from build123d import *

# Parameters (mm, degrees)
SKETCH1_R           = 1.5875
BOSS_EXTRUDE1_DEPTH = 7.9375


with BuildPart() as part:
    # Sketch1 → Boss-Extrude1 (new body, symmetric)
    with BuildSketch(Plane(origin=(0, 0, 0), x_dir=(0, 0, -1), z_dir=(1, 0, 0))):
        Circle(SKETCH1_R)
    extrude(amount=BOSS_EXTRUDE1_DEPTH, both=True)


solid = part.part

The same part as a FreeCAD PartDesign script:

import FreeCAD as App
import Part
import Sketcher

V = App.Vector
Q = App.Units.Quantity

doc = App.newDocument("Part")
params = doc.addObject("Spreadsheet::Sheet", "Params")
for row, (alias, value) in enumerate([
    ("sketch1_diameter", "0.125 in"),
    ("pad1_length", "0.625 in"),
], start=1):
    params.set(f"A{row}", alias)
    params.set(f"B{row}", "=" + value)
    params.setAlias(f"B{row}", alias)

body = doc.addObject("PartDesign::Body", "Body")

# Sketch on YZ plane
sketch1 = doc.addObject("Sketcher::SketchObject", "Sketch")
body.addObject(sketch1)
sketch1.AttachmentSupport = (doc.YZ_Plane, [""])
sketch1.MapMode = "FlatFace"
sketch1.addGeometry(Part.Circle(V(0, 0, 0), V(0, 0, 1), 1.5875), False)
sketch1.addConstraint([
    Sketcher.Constraint("Coincident", 0, 3, -1, 1),
    Sketcher.Constraint("Diameter", 0, Q("0.125 in")),
])
sketch1.setExpression("Constraints[1]", "Params.sketch1_diameter")
pad1 = doc.addObject("PartDesign::Pad", "Pad")
body.addObject(pad1)
pad1.Profile = sketch1
pad1.setExpression("Length", "Params.pad1_length")
pad1.Midplane = True

doc.recompute()
